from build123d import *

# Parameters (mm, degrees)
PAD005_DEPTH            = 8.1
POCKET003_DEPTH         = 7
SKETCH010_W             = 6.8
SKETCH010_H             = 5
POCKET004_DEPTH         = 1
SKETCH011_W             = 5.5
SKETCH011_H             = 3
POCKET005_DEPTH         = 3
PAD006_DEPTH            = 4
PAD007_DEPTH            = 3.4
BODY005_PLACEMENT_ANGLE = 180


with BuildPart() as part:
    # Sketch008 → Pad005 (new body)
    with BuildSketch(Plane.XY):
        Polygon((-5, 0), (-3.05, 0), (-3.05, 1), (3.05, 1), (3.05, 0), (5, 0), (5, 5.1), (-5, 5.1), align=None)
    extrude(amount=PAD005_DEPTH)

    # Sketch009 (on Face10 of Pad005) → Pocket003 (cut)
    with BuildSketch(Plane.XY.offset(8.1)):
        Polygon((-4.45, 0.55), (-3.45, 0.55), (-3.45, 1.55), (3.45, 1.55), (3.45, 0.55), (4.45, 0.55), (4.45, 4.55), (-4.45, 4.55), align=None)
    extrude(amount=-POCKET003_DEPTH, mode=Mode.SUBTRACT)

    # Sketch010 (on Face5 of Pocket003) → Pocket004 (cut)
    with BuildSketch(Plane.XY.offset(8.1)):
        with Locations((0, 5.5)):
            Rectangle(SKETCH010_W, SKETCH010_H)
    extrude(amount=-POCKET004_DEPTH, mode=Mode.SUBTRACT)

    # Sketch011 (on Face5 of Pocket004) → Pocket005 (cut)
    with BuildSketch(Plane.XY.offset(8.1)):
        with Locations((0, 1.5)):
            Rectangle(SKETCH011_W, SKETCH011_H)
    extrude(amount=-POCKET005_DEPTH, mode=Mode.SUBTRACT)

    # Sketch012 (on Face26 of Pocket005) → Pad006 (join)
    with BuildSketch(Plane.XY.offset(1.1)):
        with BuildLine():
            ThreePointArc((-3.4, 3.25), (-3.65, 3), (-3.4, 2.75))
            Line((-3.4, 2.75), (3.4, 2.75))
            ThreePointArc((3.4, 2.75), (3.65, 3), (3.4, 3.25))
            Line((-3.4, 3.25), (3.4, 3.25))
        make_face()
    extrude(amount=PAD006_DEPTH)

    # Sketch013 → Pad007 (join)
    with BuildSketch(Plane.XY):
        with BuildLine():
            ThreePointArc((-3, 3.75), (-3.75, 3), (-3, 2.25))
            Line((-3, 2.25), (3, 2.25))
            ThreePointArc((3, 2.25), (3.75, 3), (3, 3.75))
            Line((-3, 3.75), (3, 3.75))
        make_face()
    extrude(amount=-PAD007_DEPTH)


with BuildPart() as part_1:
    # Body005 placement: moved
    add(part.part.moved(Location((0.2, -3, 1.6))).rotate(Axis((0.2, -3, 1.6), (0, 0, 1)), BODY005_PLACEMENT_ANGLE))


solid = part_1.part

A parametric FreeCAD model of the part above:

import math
import FreeCAD as App
import Part
import Sketcher

V = App.Vector


def add_polygon(sketch, points):
    """Adds a closed chain of lines whose ends are joined by coincident constraints."""
    first, n = sketch.GeometryCount, len(points)
    for a, b in zip(points, points[1:] + points[:1]):
        sketch.addGeometry(Part.LineSegment(App.Vector(*a, 0), App.Vector(*b, 0)), False)
    for i in range(n):
        sketch.addConstraint(Sketcher.Constraint("Coincident", first + i, 2, first + (i + 1) % n, 1))

doc = App.newDocument("Part")
body = doc.addObject("PartDesign::Body", "Body")

sketch1 = body.newObject("Sketcher::SketchObject", "Sketch")
sketch1.AttachmentSupport = (doc.getObject("XY_Plane"), [""])
sketch1.MapMode = "FlatFace"
add_polygon(sketch1, [(-5, 0), (-3.05, 0), (-3.05, 1), (3.05, 1), (3.05, 0), (5, 0), (5, 5.1), (-5, 5.1)])
sketch1.addConstraint([
    Sketcher.Constraint("Horizontal", 0),
    Sketcher.Constraint("Vertical", 1),
    Sketcher.Constraint("Horizontal", 2),
    Sketcher.Constraint("Vertical", 3),
    Sketcher.Constraint("Horizontal", 4),
    Sketcher.Constraint("Vertical", 5),
    Sketcher.Constraint("Horizontal", 6),
    Sketcher.Constraint("Vertical", 7),
    Sketcher.Constraint("Symmetric", 0, 2, 3, 2, -1, 1),
    Sketcher.Constraint("Symmetric", 4, 2, 7, 2, -2),
    Sketcher.Constraint("DistanceX", 6, 2, 6, 1, 10.0),
    Sketcher.Constraint("DistanceY", 1, 1, 1, 2, 1.0),
    Sketcher.Constraint("DistanceX", 2, 1, 2, 2, 6.1),
    Sketcher.Constraint("DistanceY", 5, 1, 5, 2, 5.1),
])
pad1 = body.newObject("PartDesign::Pad", "Pad")
pad1.Profile = sketch1
pad1.Length = 8.1

sketch2 = body.newObject("Sketcher::SketchObject", "Sketch001")
sketch2.AttachmentSupport = (doc.getObject("XY_Plane"), [""])
sketch2.MapMode = "FlatFace"
sketch2.AttachmentOffset = App.Placement(V(0, 0, 8.1), App.Rotation())
add_polygon(sketch2, [(-4.45, 0.55), (-3.45, 0.55), (-3.45, 1.55), (3.45, 1.55), (3.45, 0.55), (4.45, 0.55), (4.45, 4.55), (-4.45, 4.55)])
sketch2.addConstraint([
    Sketcher.Constraint("Horizontal", 0),
    Sketcher.Constraint("Vertical", 1),
    Sketcher.Constraint("Horizontal", 2),
    Sketcher.Constraint("Vertical", 3),
    Sketcher.Constraint("Horizontal", 4),
    Sketcher.Constraint("Vertical", 5),
    Sketcher.Constraint("Horizontal", 6),
    Sketcher.Constraint("Vertical", 7),
    Sketcher.Constraint("Symmetric", 0, 2, 3, 2, -2),
    Sketcher.Constraint("Equal", 0, 4),
    Sketcher.Constraint("Equal", 4, 1),
    Sketcher.Constraint("DistanceX", 0, 1, 0, 2, 1.0),
    Sketcher.Constraint("DistanceY", 5, 1, 5, 2, 4.0),
    Sketcher.Constraint("DistanceX", 2, 1, 2, 2, 6.9),
    Sketcher.Constraint("DistanceY", -1, 1, 0, 2, 0.55),
])
pocket1 = body.newObject("PartDesign::Pocket", "Pocket")
pocket1.Profile = sketch2
pocket1.Length = 7

sketch3 = body.newObject("Sketcher::SketchObject", "Sketch002")
sketch3.AttachmentSupport = (doc.getObject("XY_Plane"), [""])
sketch3.MapMode = "FlatFace"
sketch3.AttachmentOffset = App.Placement(V(0, 0, 8.1), App.Rotation())
add_polygon(sketch3, [(-3.4, 8), (-3.4, 3), (3.4, 3), (3.4, 8)])
sketch3.addConstraint([
    Sketcher.Constraint("Vertical", 0),
    Sketcher.Constraint("Horizontal", 1),
    Sketcher.Constraint("Vertical", 2),
    Sketcher.Constraint("Horizontal", 3),
    Sketcher.Constraint("DistanceY", 0, 2, 0, 1, 5.0),
    Sketcher.Constraint("DistanceX", 1, 1, 1, 2, 6.8),
    Sketcher.Constraint("DistanceY", -1, 1, 0, 2, 3.0),
    Sketcher.Constraint("DistanceX", 0, 2, -1, 1, 3.4),
])
pocket2 = body.newObject("PartDesign::Pocket", "Pocket001")
pocket2.Profile = sketch3
pocket2.Length = 1

sketch4 = body.newObject("Sketcher::SketchObject", "Sketch003")
sketch4.AttachmentSupport = (doc.getObject("XY_Plane"), [""])
sketch4.MapMode = "FlatFace"
sketch4.AttachmentOffset = App.Placement(V(0, 0, 8.1), App.Rotation())
add_polygon(sketch4, [(-2.75, 3), (-2.75, 0), (2.75, 0), (2.75, 3)])
sketch4.addConstraint([
    Sketcher.Constraint("Vertical", 0),
    Sketcher.Constraint("Horizontal", 1),
    Sketcher.Constraint("Vertical", 2),
    Sketcher.Constraint("Horizontal", 3),
    Sketcher.Constraint("Symmetric", 0, 2, 1, 2, -1, 1),
    Sketcher.Constraint("DistanceY", 0, 2, 0, 1, 3.0),
    Sketcher.Constraint("DistanceX", 1, 1, 1, 2, 5.5),
])
pocket3 = body.newObject("PartDesign::Pocket", "Pocket002")
pocket3.Profile = sketch4
pocket3.Length = 3

sketch5 = body.newObject("Sketcher::SketchObject", "Sketch004")
sketch5.AttachmentSupport = (doc.getObject("XY_Plane"), [""])
sketch5.MapMode = "FlatFace"
sketch5.AttachmentOffset = App.Placement(V(0, 0, 1.1), App.Rotation())
sketch5.addGeometry([
    Part.ArcOfCircle(Part.Circle(V(-3.4, 3, 0), V(0, 0, 1), 0.25), math.radians(90), math.radians(270)),
    Part.LineSegment(V(-3.4, 2.75, 0), V(3.4, 2.75, 0)),
    Part.ArcOfCircle(Part.Circle(V(3.4, 3, 0), V(0, 0, 1), 0.25), math.radians(-90), math.radians(90)),
    Part.LineSegment(V(3.4, 3.25, 0), V(-3.4, 3.25, 0)),
], False)
sketch5.addConstraint([
    Sketcher.Constraint("Tangent", 0, 2, 1, 1),
    Sketcher.Constraint("Tangent", 1, 2, 2, 1),
    Sketcher.Constraint("Tangent", 2, 2, 3, 1),
    Sketcher.Constraint("Tangent", 3, 2, 0, 1),
    Sketcher.Constraint("Horizontal", 1),
    Sketcher.Constraint("Horizontal", 3),
    Sketcher.Constraint("Radius", 0, 0.25),
    Sketcher.Constraint("DistanceX", 1, 1, 1, 2, 6.8),
    Sketcher.Constraint("DistanceY", -1, 1, 0, 3, 3.0),
    Sketcher.Constraint("DistanceX", 0, 3, -1, 1, 3.4),
])
pad2 = body.newObject("PartDesign::Pad", "Pad001")
pad2.Profile = sketch5
pad2.Length = 4

sketch6 = body.newObject("Sketcher::SketchObject", "Sketch005")
sketch6.AttachmentSupport = (doc.getObject("XY_Plane"), [""])
sketch6.MapMode = "FlatFace"
sketch6.addGeometry([
    Part.ArcOfCircle(Part.Circle(V(-3, 3, 0), V(0, 0, 1), 0.75), math.radians(90), math.radians(270)),
    Part.LineSegment(V(-3, 2.25, 0), V(3, 2.25, 0)),
    Part.ArcOfCircle(Part.Circle(V(3, 3, 0), V(0, 0, 1), 0.75), math.radians(-90), math.radians(90)),
    Part.LineSegment(V(3, 3.75, 0), V(-3, 3.75, 0)),
], False)
sketch6.addConstraint([
    Sketcher.Constraint("Tangent", 0, 2, 1, 1),
    Sketcher.Constraint("Tangent", 1, 2, 2, 1),
    Sketcher.Constraint("Tangent", 2, 2, 3, 1),
    Sketcher.Constraint("Tangent", 3, 2, 0, 1),
    Sketcher.Constraint("Horizontal", 1),
    Sketcher.Constraint("Horizontal", 3),
    Sketcher.Constraint("DistanceX", 1, 1, 1, 2, 6.0),
    Sketcher.Constraint("Radius", 0, 0.75),
    Sketcher.Constraint("DistanceX", 0, 3, -1, 1, 3.0),
    Sketcher.Constraint("DistanceY", -1, 1, 0, 3, 3.0),
])
pad3 = body.newObject("PartDesign::Pad", "Pad002")
pad3.Profile = sketch6
pad3.Length = 3.4
pad3.Reversed = True
body2 = doc.addObject("PartDesign::Body", "Body001")
doc.recompute()

body.Placement = App.Placement(V(0.2, -3, 1.6), App.Rotation(V(0, 0, 1), 180))
boolean = body2.newObject("PartDesign::Boolean", "Boolean")
boolean.Type = "Fuse"
boolean.addObjects([body])

doc.recompute()
